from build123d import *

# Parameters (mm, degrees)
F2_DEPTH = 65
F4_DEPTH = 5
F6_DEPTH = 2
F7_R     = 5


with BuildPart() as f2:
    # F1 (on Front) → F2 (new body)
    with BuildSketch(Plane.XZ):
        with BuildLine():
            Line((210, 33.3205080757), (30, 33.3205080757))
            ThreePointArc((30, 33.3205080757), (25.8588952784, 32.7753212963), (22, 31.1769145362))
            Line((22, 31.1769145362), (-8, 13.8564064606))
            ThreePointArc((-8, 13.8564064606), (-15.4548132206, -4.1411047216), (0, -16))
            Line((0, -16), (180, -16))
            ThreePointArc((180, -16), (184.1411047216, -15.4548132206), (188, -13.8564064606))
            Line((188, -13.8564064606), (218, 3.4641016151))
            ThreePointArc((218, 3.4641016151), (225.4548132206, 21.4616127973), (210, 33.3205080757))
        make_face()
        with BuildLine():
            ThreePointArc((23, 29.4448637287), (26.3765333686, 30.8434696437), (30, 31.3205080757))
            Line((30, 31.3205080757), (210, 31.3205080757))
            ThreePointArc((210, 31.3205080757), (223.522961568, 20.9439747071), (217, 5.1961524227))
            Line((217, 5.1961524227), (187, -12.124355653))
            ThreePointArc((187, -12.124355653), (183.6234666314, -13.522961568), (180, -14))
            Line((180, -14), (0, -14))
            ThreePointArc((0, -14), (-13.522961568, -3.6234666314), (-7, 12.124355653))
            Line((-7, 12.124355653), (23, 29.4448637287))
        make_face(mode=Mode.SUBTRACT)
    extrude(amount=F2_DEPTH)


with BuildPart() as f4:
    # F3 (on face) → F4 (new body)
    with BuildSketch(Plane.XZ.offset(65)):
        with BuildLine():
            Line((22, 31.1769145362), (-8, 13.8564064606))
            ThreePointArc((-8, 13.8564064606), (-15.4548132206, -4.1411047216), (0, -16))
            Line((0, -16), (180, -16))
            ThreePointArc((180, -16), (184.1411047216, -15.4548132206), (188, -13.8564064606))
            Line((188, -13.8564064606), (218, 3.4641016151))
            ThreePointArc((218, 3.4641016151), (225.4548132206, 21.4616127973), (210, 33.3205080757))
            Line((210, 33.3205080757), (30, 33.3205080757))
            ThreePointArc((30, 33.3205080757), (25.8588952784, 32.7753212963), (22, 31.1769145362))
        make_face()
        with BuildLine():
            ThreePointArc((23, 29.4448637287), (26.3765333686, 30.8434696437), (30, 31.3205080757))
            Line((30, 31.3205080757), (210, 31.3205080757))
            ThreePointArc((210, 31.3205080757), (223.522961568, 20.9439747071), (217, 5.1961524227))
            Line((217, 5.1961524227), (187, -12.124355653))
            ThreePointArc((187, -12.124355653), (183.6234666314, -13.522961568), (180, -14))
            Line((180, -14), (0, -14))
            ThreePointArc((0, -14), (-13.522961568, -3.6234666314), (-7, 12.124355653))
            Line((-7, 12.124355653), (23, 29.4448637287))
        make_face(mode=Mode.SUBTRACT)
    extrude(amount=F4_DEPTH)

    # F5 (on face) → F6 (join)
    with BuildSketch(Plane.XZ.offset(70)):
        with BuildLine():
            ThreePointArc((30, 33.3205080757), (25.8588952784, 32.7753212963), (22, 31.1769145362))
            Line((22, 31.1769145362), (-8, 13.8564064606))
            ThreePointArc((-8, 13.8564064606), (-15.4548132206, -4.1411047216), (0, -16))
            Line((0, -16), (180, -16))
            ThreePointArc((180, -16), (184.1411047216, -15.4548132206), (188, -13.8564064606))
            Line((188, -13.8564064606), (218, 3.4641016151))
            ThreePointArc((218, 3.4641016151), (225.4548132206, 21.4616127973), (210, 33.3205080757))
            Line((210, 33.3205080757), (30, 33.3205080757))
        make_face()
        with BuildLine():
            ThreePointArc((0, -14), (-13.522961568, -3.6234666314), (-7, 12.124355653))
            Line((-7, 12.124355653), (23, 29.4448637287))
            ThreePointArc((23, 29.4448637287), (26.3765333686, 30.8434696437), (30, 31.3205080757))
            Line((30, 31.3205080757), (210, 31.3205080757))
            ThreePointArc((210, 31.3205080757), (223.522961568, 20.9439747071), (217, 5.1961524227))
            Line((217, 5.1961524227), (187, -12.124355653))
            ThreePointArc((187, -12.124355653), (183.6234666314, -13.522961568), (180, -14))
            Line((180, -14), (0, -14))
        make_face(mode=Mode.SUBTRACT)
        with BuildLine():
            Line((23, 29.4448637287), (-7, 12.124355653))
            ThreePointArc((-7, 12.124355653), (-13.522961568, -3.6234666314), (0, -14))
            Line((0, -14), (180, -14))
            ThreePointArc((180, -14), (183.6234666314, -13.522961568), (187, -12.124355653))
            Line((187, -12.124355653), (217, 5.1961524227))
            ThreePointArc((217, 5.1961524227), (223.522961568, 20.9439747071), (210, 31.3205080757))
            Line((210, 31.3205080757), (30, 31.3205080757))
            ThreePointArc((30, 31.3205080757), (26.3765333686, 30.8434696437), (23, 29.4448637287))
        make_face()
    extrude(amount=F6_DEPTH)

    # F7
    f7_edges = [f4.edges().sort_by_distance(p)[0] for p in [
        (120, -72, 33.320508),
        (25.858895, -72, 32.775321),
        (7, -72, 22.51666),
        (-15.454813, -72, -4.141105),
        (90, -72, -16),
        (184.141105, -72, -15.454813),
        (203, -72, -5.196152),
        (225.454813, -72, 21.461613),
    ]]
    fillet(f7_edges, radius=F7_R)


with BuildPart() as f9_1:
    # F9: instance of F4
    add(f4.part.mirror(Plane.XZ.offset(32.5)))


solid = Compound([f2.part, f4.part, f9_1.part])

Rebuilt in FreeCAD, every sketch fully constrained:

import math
import FreeCAD as App
import Part
import Sketcher
Q = App.Units.Quantity


def edges_at(feature, points):
    """Names of the edges that pass closest to the given points."""
    edges = feature.Shape.Edges
    near = lambda p: min(range(len(edges)), key=lambda i: edges[i].distToShape(Part.Vertex(*p))[0])
    return sorted({f"Edge{near(p) + 1}" for p in points})

doc = App.newDocument("Part")
body = doc.addObject("PartDesign::Body", "Body")

# Sketch on XZ plane
sketch1 = body.newObject("Sketcher::SketchObject", "Sketch")
sketch1.AttachmentSupport = (doc.getObject("XZ_Plane"), [""])
sketch1.MapMode = "FlatFace"
sketch1.addGeometry(Part.LineSegment(App.Vector(210, 33.320508, 0), App.Vector(30, 33.320508, 0)), False)
sketch1.addGeometry(Part.ArcOfCircle(Part.Circle(App.Vector(30, 17.320508, 0), App.Vector(0, 0, 1), 16), math.radians(90), math.radians(120)), False)
sketch1.addGeometry(Part.LineSegment(App.Vector(22, 31.176915, 0), App.Vector(-8, 13.856406, 0)), False)
sketch1.addGeometry(Part.ArcOfCircle(Part.Circle(App.Vector(0, 0, 0), App.Vector(0, 0, 1), 16), math.radians(120), math.radians(270)), False)
sketch1.addGeometry(Part.LineSegment(App.Vector(0, -16, 0), App.Vector(180, -16, 0)), False)
sketch1.addGeometry(Part.ArcOfCircle(Part.Circle(App.Vector(180, 0, 0), App.Vector(0, 0, 1), 16), math.radians(-90), math.radians(-60)), False)
sketch1.addGeometry(Part.LineSegment(App.Vector(188, -13.856406, 0), App.Vector(218, 3.464102, 0)), False)
sketch1.addGeometry(Part.ArcOfCircle(Part.Circle(App.Vector(210, 17.320508, 0), App.Vector(0, 0, 1), 16), math.radians(-60), math.radians(90)), False)
sketch1.addGeometry(Part.LineSegment(App.Vector(-7, 12.124356, 0), App.Vector(23, 29.444864, 0)), False)
sketch1.addGeometry(Part.ArcOfCircle(Part.Circle(App.Vector(30, 17.320508, 0), App.Vector(0, 0, 1), 14), math.radians(90), math.radians(120)), False)
sketch1.addGeometry(Part.LineSegment(App.Vector(30, 31.320508, 0), App.Vector(210, 31.320508, 0)), False)
sketch1.addGeometry(Part.ArcOfCircle(Part.Circle(App.Vector(210, 17.320508, 0), App.Vector(0, 0, 1), 14), math.radians(-60), math.radians(90)), False)
sketch1.addGeometry(Part.LineSegment(App.Vector(217, 5.196152, 0), App.Vector(187, -12.124356, 0)), False)
sketch1.addGeometry(Part.ArcOfCircle(Part.Circle(App.Vector(180, 0, 0), App.Vector(0, 0, 1), 14), math.radians(-90), math.radians(-60)), False)
sketch1.addGeometry(Part.LineSegment(App.Vector(180, -14, 0), App.Vector(0, -14, 0)), False)
sketch1.addGeometry(Part.ArcOfCircle(Part.Circle(App.Vector(0, 0, 0), App.Vector(0, 0, 1), 14), math.radians(120), math.radians(270)), False)
sketch1.addConstraint(Sketcher.Constraint("Tangent", 0, 2, 1, 1))
sketch1.addConstraint(Sketcher.Constraint("Tangent", 1, 2, 2, 1))
sketch1.addConstraint(Sketcher.Constraint("Tangent", 2, 2, 3, 1))
sketch1.addConstraint(Sketcher.Constraint("Tangent", 3, 2, 4, 1))
sketch1.addConstraint(Sketcher.Constraint("Tangent", 4, 2, 5, 1))
sketch1.addConstraint(Sketcher.Constraint("Tangent", 5, 2, 6, 1))
sketch1.addConstraint(Sketcher.Constraint("Tangent", 6, 2, 7, 1))
sketch1.addConstraint(Sketcher.Constraint("Tangent", 7, 2, 0, 1))
sketch1.addConstraint(Sketcher.Constraint("Tangent", 8, 2, 9, 2))
sketch1.addConstraint(Sketcher.Constraint("Tangent", 9, 1, 10, 1))
sketch1.addConstraint(Sketcher.Constraint("Tangent", 10, 2, 11, 2))
sketch1.addConstraint(Sketcher.Constraint("Tangent", 11, 1, 12, 1))
sketch1.addConstraint(Sketcher.Constraint("Tangent", 12, 2, 13, 2))
sketch1.addConstraint(Sketcher.Constraint("Tangent", 13, 1, 14, 1))
sketch1.addConstraint(Sketcher.Constraint("Tangent", 14, 2, 15, 2))
sketch1.addConstraint(Sketcher.Constraint("Tangent", 15, 1, 8, 1))
sketch1.addConstraint(Sketcher.Constraint("Horizontal", 0))
sketch1.addConstraint(Sketcher.Constraint("Horizontal", 4))
sketch1.addConstraint(Sketcher.Constraint("Horizontal", 10))
sketch1.addConstraint(Sketcher.Constraint("Horizontal", 14))
sketch1.addConstraint(Sketcher.Constraint("Coincident", 3, 3, -1, 1))
sketch1.addConstraint(Sketcher.Constraint("Coincident", 15, 3, -1, 1))
sketch1.addConstraint(Sketcher.Constraint("Coincident", 9, 3, 1, 3))
sketch1.addConstraint(Sketcher.Constraint("Coincident", 11, 3, 7, 3))
sketch1.addConstraint(Sketcher.Constraint("Coincident", 13, 3, 5, 3))
sketch1.addConstraint(Sketcher.Constraint("Equal", 1, 3))
sketch1.addConstraint(Sketcher.Constraint("Equal", 3, 5))
sketch1.addConstraint(Sketcher.Constraint("Equal", 5, 7))
sketch1.addConstraint(Sketcher.Constraint("Equal", 11, 13))
sketch1.addConstraint(Sketcher.Constraint("Parallel", 2, 6))
sketch1.addConstraint(Sketcher.Constraint("Radius", 1, 16.0))
sketch1.addConstraint(Sketcher.Constraint("Radius", 9, 14.0))
sketch1.addConstraint(Sketcher.Constraint("DistanceX", 0, 2, 0, 1, 180.0))
sketch1.addConstraint(Sketcher.Constraint("Angle", 2, Q("-150 deg")))
sketch1.addConstraint(Sketcher.Constraint("DistanceX", -1, 1, 1, 3, 30.0))
pad1 = body.newObject("PartDesign::Pad", "Pad")
pad1.Profile = sketch1
pad1.Length = 65
body2 = doc.addObject("PartDesign::Body", "Body001")

# Sketch on XZ plane
sketch2 = body2.newObject("Sketcher::SketchObject", "Sketch001")
sketch2.AttachmentSupport = (doc.getObject("XZ_Plane001"), [""])
sketch2.MapMode = "FlatFace"
sketch2.AttachmentOffset = App.Placement(App.Vector(0, 0, 65), App.Rotation())
sketch2.addGeometry(Part.LineSegment(App.Vector(22, 31.176915, 0), App.Vector(-8, 13.856406, 0)), False)
sketch2.addGeometry(Part.ArcOfCircle(Part.Circle(App.Vector(0, 0, 0), App.Vector(0, 0, 1), 16), math.radians(120), math.radians(270)), False)
sketch2.addGeometry(Part.LineSegment(App.Vector(0, -16, 0), App.Vector(180, -16, 0)), False)
sketch2.addGeometry(Part.ArcOfCircle(Part.Circle(App.Vector(180, 0, 0), App.Vector(0, 0, 1), 16), math.radians(-90), math.radians(-60)), False)
sketch2.addGeometry(Part.LineSegment(App.Vector(188, -13.856406, 0), App.Vector(218, 3.464102, 0)), False)
sketch2.addGeometry(Part.ArcOfCircle(Part.Circle(App.Vector(210, 17.320508, 0), App.Vector(0, 0, 1), 16), math.radians(-60), math.radians(90)), False)
sketch2.addGeometry(Part.LineSegment(App.Vector(210, 33.320508, 0), App.Vector(30, 33.320508, 0)), False)
sketch2.addGeometry(Part.ArcOfCircle(Part.Circle(App.Vector(30, 17.320508, 0), App.Vector(0, 0, 1), 16), math.radians(90), math.radians(120)), False)
sketch2.addGeometry(Part.LineSegment(App.Vector(-7, 12.124356, 0), App.Vector(23, 29.444864, 0)), False)
sketch2.addGeometry(Part.ArcOfCircle(Part.Circle(App.Vector(30, 17.320508, 0), App.Vector(0, 0, 1), 14), math.radians(90), math.radians(120)), False)
sketch2.addGeometry(Part.LineSegment(App.Vector(30, 31.320508, 0), App.Vector(210, 31.320508, 0)), False)
sketch2.addGeometry(Part.ArcOfCircle(Part.Circle(App.Vector(210, 17.320508, 0), App.Vector(0, 0, 1), 14), math.radians(-60), math.radians(90)), False)
sketch2.addGeometry(Part.LineSegment(App.Vector(217, 5.196152, 0), App.Vector(187, -12.124356, 0)), False)
sketch2.addGeometry(Part.ArcOfCircle(Part.Circle(App.Vector(180, 0, 0), App.Vector(0, 0, 1), 14), math.radians(-90), math.radians(-60)), False)
sketch2.addGeometry(Part.LineSegment(App.Vector(180, -14, 0), App.Vector(0, -14, 0)), False)
sketch2.addGeometry(Part.ArcOfCircle(Part.Circle(App.Vector(0, 0, 0), App.Vector(0, 0, 1), 14), math.radians(120), math.radians(270)), False)
sketch2.addConstraint(Sketcher.Constraint("Tangent", 0, 2, 1, 1))
sketch2.addConstraint(Sketcher.Constraint("Tangent", 1, 2, 2, 1))
sketch2.addConstraint(Sketcher.Constraint("Tangent", 2, 2, 3, 1))
sketch2.addConstraint(Sketcher.Constraint("Tangent", 3, 2, 4, 1))
sketch2.addConstraint(Sketcher.Constraint("Tangent", 4, 2, 5, 1))
sketch2.addConstraint(Sketcher.Constraint("Tangent", 5, 2, 6, 1))
sketch2.addConstraint(Sketcher.Constraint("Tangent", 6, 2, 7, 1))
sketch2.addConstraint(Sketcher.Constraint("Tangent", 7, 2, 0, 1))
sketch2.addConstraint(Sketcher.Constraint("Tangent", 8, 2, 9, 2))
sketch2.addConstraint(Sketcher.Constraint("Tangent", 9, 1, 10, 1))
sketch2.addConstraint(Sketcher.Constraint("Tangent", 10, 2, 11, 2))
sketch2.addConstraint(Sketcher.Constraint("Tangent", 11, 1, 12, 1))
sketch2.addConstraint(Sketcher.Constraint("Tangent", 12, 2, 13, 2))
sketch2.addConstraint(Sketcher.Constraint("Tangent", 13, 1, 14, 1))
sketch2.addConstraint(Sketcher.Constraint("Tangent", 14, 2, 15, 2))
sketch2.addConstraint(Sketcher.Constraint("Tangent", 15, 1, 8, 1))
sketch2.addConstraint(Sketcher.Constraint("Horizontal", 2))
sketch2.addConstraint(Sketcher.Constraint("Horizontal", 6))
sketch2.addConstraint(Sketcher.Constraint("Horizontal", 10))
sketch2.addConstraint(Sketcher.Constraint("Horizontal", 14))
sketch2.addConstraint(Sketcher.Constraint("Coincident", 1, 3, -1, 1))
sketch2.addConstraint(Sketcher.Constraint("Coincident", 15, 3, -1, 1))
sketch2.addConstraint(Sketcher.Constraint("Coincident", 9, 3, 7, 3))
sketch2.addConstraint(Sketcher.Constraint("Coincident", 11, 3, 5, 3))
sketch2.addConstraint(Sketcher.Constraint("Coincident", 13, 3, 3, 3))
sketch2.addConstraint(Sketcher.Constraint("Equal", 1, 3))
sketch2.addConstraint(Sketcher.Constraint("Equal", 3, 5))
sketch2.addConstraint(Sketcher.Constraint("Equal", 5, 7))
sketch2.addConstraint(Sketcher.Constraint("Equal", 11, 13))
sketch2.addConstraint(Sketcher.Constraint("Parallel", 0, 4))
sketch2.addConstraint(Sketcher.Constraint("Radius", 1, 16.0))
sketch2.addConstraint(Sketcher.Constraint("Radius", 9, 14.0))
sketch2.addConstraint(Sketcher.Constraint("DistanceX", 2, 1, 2, 2, 180.0))
sketch2.addConstraint(Sketcher.Constraint("Angle", 0, Q("-150 deg")))
sketch2.addConstraint(Sketcher.Constraint("DistanceX", -1, 1, 5, 3, 210.0))
pad2 = body2.newObject("PartDesign::Pad", "Pad001")
pad2.Profile = sketch2
pad2.Length = 5

# Sketch on XZ plane
sketch3 = body2.newObject("Sketcher::SketchObject", "Sketch002")
sketch3.AttachmentSupport = (doc.getObject("XZ_Plane001"), [""])
sketch3.MapMode = "FlatFace"
sketch3.AttachmentOffset = App.Placement(App.Vector(0, 0, 70), App.Rotation())
sketch3.addGeometry(Part.ArcOfCircle(Part.Circle(App.Vector(30, 17.320508, 0), App.Vector(0, 0, 1), 16), math.radians(90), math.radians(120)), False)
sketch3.addGeometry(Part.LineSegment(App.Vector(22, 31.176915, 0), App.Vector(-8, 13.856406, 0)), False)
sketch3.addGeometry(Part.ArcOfCircle(Part.Circle(App.Vector(0, 0, 0), App.Vector(0, 0, 1), 16), math.radians(120), math.radians(270)), False)
sketch3.addGeometry(Part.LineSegment(App.Vector(0, -16, 0), App.Vector(180, -16, 0)), False)
sketch3.addGeometry(Part.ArcOfCircle(Part.Circle(App.Vector(180, 0, 0), App.Vector(0, 0, 1), 16), math.radians(-90), math.radians(-60)), False)
sketch3.addGeometry(Part.LineSegment(App.Vector(188, -13.856406, 0), App.Vector(218, 3.464102, 0)), False)
sketch3.addGeometry(Part.ArcOfCircle(Part.Circle(App.Vector(210, 17.320508, 0), App.Vector(0, 0, 1), 16), math.radians(-60), math.radians(90)), False)
sketch3.addGeometry(Part.LineSegment(App.Vector(210, 33.320508, 0), App.Vector(30, 33.320508, 0)), False)
sketch3.addConstraint(Sketcher.Constraint("Tangent", 0, 2, 1, 1))
sketch3.addConstraint(Sketcher.Constraint("Tangent", 1, 2, 2, 1))
sketch3.addConstraint(Sketcher.Constraint("Tangent", 2, 2, 3, 1))
sketch3.addConstraint(Sketcher.Constraint("Tangent", 3, 2, 4, 1))
sketch3.addConstraint(Sketcher.Constraint("Tangent", 4, 2, 5, 1))
sketch3.addConstraint(Sketcher.Constraint("Tangent", 5, 2, 6, 1))
sketch3.addConstraint(Sketcher.Constraint("Tangent", 6, 2, 7, 1))
sketch3.addConstraint(Sketcher.Constraint("Tangent", 7, 2, 0, 1))
sketch3.addConstraint(Sketcher.Constraint("Horizontal", 3))
sketch3.addConstraint(Sketcher.Constraint("Horizontal", 7))
sketch3.addConstraint(Sketcher.Constraint("Coincident", 2, 3, -1, 1))
sketch3.addConstraint(Sketcher.Constraint("Equal", 0, 2))
sketch3.addConstraint(Sketcher.Constraint("Equal", 2, 4))
sketch3.addConstraint(Sketcher.Constraint("Equal", 4, 6))
sketch3.addConstraint(Sketcher.Constraint("Parallel", 1, 5))
sketch3.addConstraint(Sketcher.Constraint("Radius", 0, 16.0))
sketch3.addConstraint(Sketcher.Constraint("DistanceX", 3, 1, 3, 2, 180.0))
sketch3.addConstraint(Sketcher.Constraint("Angle", 1, Q("-150 deg")))
sketch3.addConstraint(Sketcher.Constraint("DistanceX", -1, 1, 0, 3, 30.0))
pad3 = body2.newObject("PartDesign::Pad", "Pad002")
pad3.Profile = sketch3
pad3.Length = 2
doc.recompute()

fillet = body2.newObject("PartDesign::Fillet", "Fillet")
fillet.Base = (pad3, edges_at(pad3, [
    (120, -72, 33.321),
    (25.859, -72, 32.775),
    (7, -72, 22.517),
    (-15.455, -72, -4.141),
    (90, -72, -16),
    (184.141, -72, -15.455),
    (203, -72, -5.196),
    (225.455, -72, 21.462),
]))
fillet.Radius = 5
body3 = doc.addObject("PartDesign::Body", "Body002")
doc.recompute()

mirroring = doc.addObject("Part::Mirroring", "Mirroring")
mirroring.Source = body2
mirroring.Base = App.Vector(0, -32.5, 0)
mirroring.Normal = App.Vector(0, -1, 0)
body3.BaseFeature = mirroring
doc.recompute()
mirroring.Visibility = False

doc.recompute()
